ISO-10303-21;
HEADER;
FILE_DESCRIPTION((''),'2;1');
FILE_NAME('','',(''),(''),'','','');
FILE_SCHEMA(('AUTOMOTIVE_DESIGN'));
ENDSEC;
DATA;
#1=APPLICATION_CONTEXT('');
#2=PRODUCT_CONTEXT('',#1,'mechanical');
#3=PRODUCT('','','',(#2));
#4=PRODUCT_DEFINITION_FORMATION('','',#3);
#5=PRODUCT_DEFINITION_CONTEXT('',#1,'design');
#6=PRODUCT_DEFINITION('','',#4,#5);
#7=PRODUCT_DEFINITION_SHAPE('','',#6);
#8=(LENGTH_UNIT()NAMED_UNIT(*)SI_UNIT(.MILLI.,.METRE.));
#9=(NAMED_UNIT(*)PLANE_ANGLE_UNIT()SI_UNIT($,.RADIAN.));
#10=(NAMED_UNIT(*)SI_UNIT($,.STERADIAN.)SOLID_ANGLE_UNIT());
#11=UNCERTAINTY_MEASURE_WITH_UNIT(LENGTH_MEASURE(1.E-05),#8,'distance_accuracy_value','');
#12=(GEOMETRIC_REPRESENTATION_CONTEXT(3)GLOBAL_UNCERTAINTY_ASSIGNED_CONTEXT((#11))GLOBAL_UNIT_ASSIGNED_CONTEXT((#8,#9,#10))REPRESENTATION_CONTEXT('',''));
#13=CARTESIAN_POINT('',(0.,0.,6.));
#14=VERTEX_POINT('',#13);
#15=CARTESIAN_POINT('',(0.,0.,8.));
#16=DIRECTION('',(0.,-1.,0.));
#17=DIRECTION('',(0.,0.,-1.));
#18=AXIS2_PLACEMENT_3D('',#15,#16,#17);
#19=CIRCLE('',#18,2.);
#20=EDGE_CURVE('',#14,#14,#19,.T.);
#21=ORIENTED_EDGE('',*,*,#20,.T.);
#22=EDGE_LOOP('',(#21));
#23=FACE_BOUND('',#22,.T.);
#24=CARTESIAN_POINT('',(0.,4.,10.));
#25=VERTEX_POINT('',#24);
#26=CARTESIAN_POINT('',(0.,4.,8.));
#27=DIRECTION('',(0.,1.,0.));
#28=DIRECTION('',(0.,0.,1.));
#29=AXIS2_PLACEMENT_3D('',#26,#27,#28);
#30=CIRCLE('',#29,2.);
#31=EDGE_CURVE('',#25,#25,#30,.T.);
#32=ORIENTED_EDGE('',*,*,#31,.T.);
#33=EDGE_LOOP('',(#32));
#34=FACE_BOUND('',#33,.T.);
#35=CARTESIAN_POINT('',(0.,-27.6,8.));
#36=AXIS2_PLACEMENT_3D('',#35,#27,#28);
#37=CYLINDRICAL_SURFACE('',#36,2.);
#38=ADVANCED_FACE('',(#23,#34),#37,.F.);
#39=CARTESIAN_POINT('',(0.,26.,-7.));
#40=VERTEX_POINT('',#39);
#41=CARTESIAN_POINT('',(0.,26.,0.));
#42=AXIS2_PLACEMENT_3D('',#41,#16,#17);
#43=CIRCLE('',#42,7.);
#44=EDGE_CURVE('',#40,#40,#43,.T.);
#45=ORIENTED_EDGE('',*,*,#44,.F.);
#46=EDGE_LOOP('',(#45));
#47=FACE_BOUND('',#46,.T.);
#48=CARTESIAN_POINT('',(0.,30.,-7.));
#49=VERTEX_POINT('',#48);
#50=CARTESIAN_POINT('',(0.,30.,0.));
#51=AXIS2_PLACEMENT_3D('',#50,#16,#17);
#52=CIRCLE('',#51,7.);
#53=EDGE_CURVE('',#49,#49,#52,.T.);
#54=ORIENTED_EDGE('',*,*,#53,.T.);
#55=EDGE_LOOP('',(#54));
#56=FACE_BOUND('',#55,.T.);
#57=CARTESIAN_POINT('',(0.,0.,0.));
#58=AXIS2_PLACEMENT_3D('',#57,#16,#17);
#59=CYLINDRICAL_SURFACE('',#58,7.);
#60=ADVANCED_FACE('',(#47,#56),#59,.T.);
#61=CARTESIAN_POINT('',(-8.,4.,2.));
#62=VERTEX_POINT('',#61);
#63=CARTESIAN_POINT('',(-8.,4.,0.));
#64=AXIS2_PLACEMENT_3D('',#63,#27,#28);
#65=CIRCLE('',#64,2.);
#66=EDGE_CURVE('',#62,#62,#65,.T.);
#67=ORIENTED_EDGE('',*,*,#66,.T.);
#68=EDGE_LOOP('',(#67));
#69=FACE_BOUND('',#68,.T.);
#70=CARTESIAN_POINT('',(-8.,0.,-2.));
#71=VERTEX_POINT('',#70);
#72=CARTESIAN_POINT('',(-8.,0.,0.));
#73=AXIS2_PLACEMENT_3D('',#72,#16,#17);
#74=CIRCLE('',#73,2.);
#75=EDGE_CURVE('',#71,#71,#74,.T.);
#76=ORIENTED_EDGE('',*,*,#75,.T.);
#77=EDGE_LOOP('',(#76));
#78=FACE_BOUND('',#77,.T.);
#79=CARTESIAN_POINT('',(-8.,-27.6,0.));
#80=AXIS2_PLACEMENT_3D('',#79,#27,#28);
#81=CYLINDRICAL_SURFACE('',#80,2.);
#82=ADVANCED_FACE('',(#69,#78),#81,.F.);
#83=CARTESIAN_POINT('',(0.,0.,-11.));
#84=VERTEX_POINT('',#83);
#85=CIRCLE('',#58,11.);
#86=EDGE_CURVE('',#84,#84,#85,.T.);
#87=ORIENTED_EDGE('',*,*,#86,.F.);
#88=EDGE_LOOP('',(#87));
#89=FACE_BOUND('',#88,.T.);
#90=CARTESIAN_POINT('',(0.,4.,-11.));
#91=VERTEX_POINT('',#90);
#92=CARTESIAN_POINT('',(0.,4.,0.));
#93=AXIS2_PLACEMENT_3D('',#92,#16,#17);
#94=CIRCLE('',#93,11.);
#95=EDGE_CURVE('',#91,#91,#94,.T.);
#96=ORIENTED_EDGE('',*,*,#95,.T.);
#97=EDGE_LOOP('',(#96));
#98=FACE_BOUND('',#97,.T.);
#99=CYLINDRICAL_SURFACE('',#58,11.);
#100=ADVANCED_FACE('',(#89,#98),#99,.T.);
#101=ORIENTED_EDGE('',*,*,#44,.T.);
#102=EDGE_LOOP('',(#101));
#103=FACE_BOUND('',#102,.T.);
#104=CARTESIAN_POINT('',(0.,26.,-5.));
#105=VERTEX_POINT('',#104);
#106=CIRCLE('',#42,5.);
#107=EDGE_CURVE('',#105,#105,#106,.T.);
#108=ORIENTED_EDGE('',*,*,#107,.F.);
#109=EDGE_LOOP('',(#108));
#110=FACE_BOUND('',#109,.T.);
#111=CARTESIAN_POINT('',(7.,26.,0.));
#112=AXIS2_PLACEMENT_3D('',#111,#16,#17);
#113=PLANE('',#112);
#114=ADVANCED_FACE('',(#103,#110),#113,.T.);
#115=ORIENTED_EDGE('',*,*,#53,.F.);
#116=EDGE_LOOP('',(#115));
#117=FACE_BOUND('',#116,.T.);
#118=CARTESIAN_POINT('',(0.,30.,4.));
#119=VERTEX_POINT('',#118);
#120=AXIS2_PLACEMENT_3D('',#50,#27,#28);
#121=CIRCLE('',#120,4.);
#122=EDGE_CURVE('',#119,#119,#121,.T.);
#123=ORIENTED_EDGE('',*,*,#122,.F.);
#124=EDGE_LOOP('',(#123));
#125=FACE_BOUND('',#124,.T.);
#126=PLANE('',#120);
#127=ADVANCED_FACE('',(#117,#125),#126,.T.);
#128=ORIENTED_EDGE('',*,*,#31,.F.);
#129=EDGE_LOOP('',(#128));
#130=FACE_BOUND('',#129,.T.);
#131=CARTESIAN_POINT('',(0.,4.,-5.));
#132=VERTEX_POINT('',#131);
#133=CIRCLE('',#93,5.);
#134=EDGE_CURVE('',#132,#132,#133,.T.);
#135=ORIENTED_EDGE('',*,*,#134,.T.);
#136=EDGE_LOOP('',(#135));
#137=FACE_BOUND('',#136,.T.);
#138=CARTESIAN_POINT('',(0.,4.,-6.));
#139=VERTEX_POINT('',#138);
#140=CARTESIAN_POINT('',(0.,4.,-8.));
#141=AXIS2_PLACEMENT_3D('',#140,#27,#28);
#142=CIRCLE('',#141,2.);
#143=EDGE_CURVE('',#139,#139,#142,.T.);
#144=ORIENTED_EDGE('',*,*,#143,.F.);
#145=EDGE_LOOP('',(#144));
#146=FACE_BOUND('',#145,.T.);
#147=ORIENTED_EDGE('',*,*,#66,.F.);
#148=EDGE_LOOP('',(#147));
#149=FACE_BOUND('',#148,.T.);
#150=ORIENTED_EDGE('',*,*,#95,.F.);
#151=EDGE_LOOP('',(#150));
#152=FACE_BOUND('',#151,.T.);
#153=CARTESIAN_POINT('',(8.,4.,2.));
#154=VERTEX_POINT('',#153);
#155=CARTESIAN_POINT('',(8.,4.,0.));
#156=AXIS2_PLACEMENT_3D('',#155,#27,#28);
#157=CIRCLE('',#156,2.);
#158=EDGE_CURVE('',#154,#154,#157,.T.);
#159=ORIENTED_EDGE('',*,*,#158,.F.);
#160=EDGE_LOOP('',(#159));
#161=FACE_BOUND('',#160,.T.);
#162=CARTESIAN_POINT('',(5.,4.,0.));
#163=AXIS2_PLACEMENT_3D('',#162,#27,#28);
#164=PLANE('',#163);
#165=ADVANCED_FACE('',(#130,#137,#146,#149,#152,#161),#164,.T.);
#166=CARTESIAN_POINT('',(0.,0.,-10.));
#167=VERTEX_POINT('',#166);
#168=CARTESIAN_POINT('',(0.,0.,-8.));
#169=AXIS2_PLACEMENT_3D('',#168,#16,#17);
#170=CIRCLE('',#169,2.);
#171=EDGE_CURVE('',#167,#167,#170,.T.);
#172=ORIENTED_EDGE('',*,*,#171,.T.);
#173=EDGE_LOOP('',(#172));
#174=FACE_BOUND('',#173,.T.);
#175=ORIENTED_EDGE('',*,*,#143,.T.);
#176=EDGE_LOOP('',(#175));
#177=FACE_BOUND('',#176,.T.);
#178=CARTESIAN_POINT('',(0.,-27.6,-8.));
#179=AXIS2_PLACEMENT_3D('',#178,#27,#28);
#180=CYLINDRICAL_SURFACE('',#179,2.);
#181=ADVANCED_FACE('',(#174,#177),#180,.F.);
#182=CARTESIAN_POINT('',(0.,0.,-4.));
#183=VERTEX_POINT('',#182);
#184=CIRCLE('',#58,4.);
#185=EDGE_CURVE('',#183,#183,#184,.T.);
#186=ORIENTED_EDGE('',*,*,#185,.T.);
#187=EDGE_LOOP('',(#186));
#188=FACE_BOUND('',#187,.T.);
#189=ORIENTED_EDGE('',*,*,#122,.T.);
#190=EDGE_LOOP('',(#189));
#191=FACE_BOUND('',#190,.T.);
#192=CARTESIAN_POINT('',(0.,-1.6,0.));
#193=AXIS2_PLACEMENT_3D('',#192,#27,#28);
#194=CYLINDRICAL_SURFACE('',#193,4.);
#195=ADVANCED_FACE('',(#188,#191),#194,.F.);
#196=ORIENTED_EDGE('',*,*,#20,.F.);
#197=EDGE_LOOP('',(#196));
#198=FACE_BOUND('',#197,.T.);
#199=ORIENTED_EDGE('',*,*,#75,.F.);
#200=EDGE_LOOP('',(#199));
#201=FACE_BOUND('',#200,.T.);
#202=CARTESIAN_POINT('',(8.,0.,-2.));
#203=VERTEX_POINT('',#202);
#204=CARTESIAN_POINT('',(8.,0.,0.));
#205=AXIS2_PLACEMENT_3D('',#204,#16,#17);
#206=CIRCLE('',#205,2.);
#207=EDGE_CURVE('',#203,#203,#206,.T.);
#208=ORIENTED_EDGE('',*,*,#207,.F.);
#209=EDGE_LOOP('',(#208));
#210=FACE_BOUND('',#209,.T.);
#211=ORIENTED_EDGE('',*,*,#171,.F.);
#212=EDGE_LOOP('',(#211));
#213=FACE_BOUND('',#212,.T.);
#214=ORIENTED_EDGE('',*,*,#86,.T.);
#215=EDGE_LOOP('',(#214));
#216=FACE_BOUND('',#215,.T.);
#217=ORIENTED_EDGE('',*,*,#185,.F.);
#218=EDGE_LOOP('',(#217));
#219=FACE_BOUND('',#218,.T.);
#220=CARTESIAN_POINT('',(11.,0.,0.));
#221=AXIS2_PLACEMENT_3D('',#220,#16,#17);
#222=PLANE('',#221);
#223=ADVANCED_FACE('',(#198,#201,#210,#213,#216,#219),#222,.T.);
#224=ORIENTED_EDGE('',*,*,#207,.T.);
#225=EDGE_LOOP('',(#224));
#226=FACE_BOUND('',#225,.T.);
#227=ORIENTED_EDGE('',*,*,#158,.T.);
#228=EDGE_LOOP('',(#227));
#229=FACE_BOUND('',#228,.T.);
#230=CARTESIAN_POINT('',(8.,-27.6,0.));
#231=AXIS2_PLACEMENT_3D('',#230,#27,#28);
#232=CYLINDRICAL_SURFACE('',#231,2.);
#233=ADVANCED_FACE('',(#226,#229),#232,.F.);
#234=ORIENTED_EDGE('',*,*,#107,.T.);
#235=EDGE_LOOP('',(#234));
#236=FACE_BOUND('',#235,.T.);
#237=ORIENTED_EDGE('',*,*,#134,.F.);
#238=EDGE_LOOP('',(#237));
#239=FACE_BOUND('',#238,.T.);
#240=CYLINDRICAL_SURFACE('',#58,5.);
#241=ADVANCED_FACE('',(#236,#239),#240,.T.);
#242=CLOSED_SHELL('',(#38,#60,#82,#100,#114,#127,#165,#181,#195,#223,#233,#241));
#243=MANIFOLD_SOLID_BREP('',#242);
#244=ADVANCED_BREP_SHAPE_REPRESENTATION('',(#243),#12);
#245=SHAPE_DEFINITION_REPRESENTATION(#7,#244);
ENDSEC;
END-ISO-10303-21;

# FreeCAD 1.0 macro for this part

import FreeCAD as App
import Part
import Sketcher

V = App.Vector
Q = App.Units.Quantity

doc = App.newDocument("Part")
body = doc.addObject("PartDesign::Body", "Body")

sketch1 = doc.addObject("Sketcher::SketchObject", "Sketch")
body.addObject(sketch1)
sketch1.AttachmentSupport = (doc.XY_Plane, [""])
sketch1.MapMode = "FlatFace"
sketch1.addGeometry([
    Part.LineSegment(V(0, 30, 0), V(0, 0, 0)),
    Part.LineSegment(V(0, 0, 0), V(11, 0, 0)),
    Part.LineSegment(V(11, 0, 0), V(11, 4, 0)),
    Part.LineSegment(V(11, 4, 0), V(5, 4, 0)),
    Part.LineSegment(V(5, 4, 0), V(5, 26, 0)),
    Part.LineSegment(V(5, 26, 0), V(7, 26, 0)),
    Part.LineSegment(V(7, 26, 0), V(7, 30, 0)),
    Part.LineSegment(V(7, 30, 0), V(0, 30, 0)),
], False)
sketch1.addConstraint([
    Sketcher.Constraint("Coincident", 0, 2, 1, 1),
    Sketcher.Constraint("Coincident", 1, 2, 2, 1),
    Sketcher.Constraint("Coincident", 2, 2, 3, 1),
    Sketcher.Constraint("Coincident", 3, 2, 4, 1),
    Sketcher.Constraint("Coincident", 4, 2, 5, 1),
    Sketcher.Constraint("Coincident", 5, 2, 6, 1),
    Sketcher.Constraint("Coincident", 6, 2, 7, 1),
    Sketcher.Constraint("Coincident", 7, 2, 0, 1),
    Sketcher.Constraint("Vertical", 0),
    Sketcher.Constraint("Horizontal", 1),
    Sketcher.Constraint("Vertical", 2),
    Sketcher.Constraint("Horizontal", 3),
    Sketcher.Constraint("Vertical", 4),
    Sketcher.Constraint("Horizontal", 5),
    Sketcher.Constraint("Vertical", 6),
    Sketcher.Constraint("Horizontal", 7),
    Sketcher.Constraint("Coincident", 0, 2, -1, 1),
    Sketcher.Constraint("Equal", 2, 6),
    Sketcher.Constraint("DistanceX", 1, 1, 1, 2, Q("11 mm")),
    Sketcher.Constraint("DistanceX", 3, 2, 3, 1, Q("6 mm")),
    Sketcher.Constraint("DistanceX", 5, 1, 5, 2, Q("2 mm")),
    Sketcher.Constraint("DistanceY", 0, 2, 0, 1, Q("30 mm")),
    Sketcher.Constraint("DistanceY", 2, 1, 2, 2, Q("4 mm")),
])
revolution = doc.addObject("PartDesign::Revolution", "Revolution")
body.addObject(revolution)
revolution.Profile = sketch1
revolution.ReferenceAxis = (sketch1, ["V_Axis"])
revolution.Angle = 360

sketch2 = doc.addObject("Sketcher::SketchObject", "Sketch001")
body.addObject(sketch2)
sketch2.AttachmentSupport = (doc.XZ_Plane, [""])
sketch2.MapMode = "FlatFace"
sketch2.AttachmentOffset = App.Placement(V(0, 0, -30), App.Rotation())
sketch2.addGeometry(Part.Circle(V(0, 0, 0), V(0, 0, 1), 4), False)
sketch2.addConstraint([
    Sketcher.Constraint("Coincident", 0, 3, -1, 1),
    Sketcher.Constraint("Diameter", 0, Q("8 mm")),
])
pocket1 = doc.addObject("PartDesign::Pocket", "Pocket")
body.addObject(pocket1)
pocket1.Profile = sketch2
pocket1.Length = 31.6
pocket1.Reversed = True

sketch3 = doc.addObject("Sketcher::SketchObject", "Sketch002")
body.addObject(sketch3)
sketch3.AttachmentSupport = (doc.XZ_Plane, [""])
sketch3.MapMode = "FlatFace"
sketch3.AttachmentOffset = App.Placement(V(0, 0, -4), App.Rotation())
sketch3.addGeometry([
    Part.Circle(V(8, 0, 0), V(0, 0, 1), 2),
    Part.Circle(V(0, -8, 0), V(0, 0, 1), 2),
    Part.Circle(V(-8, 0, 0), V(0, 0, 1), 2),
    Part.Circle(V(0, 8, 0), V(0, 0, 1), 2),
], False)
sketch3.addConstraint([
    Sketcher.Constraint("Equal", 0, 1),
    Sketcher.Constraint("Equal", 1, 2),
    Sketcher.Constraint("Equal", 2, 3),
    Sketcher.Constraint("Symmetric", 0, 3, 2, 3, -1, 1),
    Sketcher.Constraint("Symmetric", 1, 3, 3, 3, -1, 1),
    Sketcher.Constraint("PointOnObject", 0, 3, -1),
    Sketcher.Constraint("PointOnObject", 1, 3, -2),
    Sketcher.Constraint("Diameter", 0, Q("4 mm")),
    Sketcher.Constraint("DistanceX", -1, 1, 0, 3, Q("8 mm")),
    Sketcher.Constraint("DistanceY", 1, 3, -1, 1, Q("8 mm")),
])
pocket2 = doc.addObject("PartDesign::Pocket", "Pocket001")
body.addObject(pocket2)
pocket2.Profile = sketch3
pocket2.Length = 31.6
pocket2.Reversed = True

doc.recompute()
